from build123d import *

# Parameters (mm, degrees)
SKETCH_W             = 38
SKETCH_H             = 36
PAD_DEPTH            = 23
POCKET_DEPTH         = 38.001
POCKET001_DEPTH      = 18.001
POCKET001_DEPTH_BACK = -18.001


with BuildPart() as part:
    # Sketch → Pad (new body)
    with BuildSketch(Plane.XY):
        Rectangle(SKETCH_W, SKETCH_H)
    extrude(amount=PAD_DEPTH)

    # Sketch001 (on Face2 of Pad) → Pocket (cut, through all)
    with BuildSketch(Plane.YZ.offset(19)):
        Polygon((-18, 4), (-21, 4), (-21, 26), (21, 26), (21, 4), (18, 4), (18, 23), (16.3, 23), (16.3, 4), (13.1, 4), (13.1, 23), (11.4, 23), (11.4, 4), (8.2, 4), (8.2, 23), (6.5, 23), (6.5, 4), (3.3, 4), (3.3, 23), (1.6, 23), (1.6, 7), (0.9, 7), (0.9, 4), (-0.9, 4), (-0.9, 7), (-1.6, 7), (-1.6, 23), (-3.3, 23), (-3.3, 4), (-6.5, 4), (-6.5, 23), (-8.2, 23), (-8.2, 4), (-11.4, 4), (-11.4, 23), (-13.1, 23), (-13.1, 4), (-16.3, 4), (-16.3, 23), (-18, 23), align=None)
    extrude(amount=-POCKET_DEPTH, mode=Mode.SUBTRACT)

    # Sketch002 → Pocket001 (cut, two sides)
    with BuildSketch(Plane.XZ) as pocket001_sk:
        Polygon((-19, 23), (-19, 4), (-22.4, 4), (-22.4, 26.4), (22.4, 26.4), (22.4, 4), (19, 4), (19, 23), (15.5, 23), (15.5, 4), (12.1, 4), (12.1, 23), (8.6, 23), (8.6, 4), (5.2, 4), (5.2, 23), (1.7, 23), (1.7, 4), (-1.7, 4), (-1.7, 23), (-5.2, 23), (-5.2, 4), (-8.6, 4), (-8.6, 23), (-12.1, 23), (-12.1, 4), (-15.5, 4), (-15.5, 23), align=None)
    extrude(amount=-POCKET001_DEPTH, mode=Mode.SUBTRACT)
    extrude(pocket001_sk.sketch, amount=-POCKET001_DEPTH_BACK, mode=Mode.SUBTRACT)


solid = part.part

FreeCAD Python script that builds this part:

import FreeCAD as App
import Part
import Sketcher
Q = App.Units.Quantity


def add_polygon(sketch, points):
    """Adds a closed chain of lines whose ends are joined by coincident constraints."""
    first, n = sketch.GeometryCount, len(points)
    for a, b in zip(points, points[1:] + points[:1]):
        sketch.addGeometry(Part.LineSegment(App.Vector(*a, 0), App.Vector(*b, 0)), False)
    for i in range(n):
        sketch.addConstraint(Sketcher.Constraint("Coincident", first + i, 2, first + (i + 1) % n, 1))

doc = App.newDocument("Part")
body = doc.addObject("PartDesign::Body", "Body")

# Sketch on XY plane
sketch1 = body.newObject("Sketcher::SketchObject", "Sketch")
sketch1.AttachmentSupport = (doc.getObject("XY_Plane"), [""])
sketch1.MapMode = "FlatFace"
add_polygon(sketch1, [(-19, 18), (-19, -18), (19, -18), (19, 18)])  # lines 0-3
sketch1.addConstraint([
    Sketcher.Constraint("Vertical", 0),
    Sketcher.Constraint("Horizontal", 1),
    Sketcher.Constraint("Vertical", 2),
    Sketcher.Constraint("Horizontal", 3),
    Sketcher.Constraint("Symmetric", 0, 2, 2, 2, -1, 1),
    Sketcher.Constraint("DistanceX", 1, 1, 1, 2, Q("38 mm")),
    Sketcher.Constraint("DistanceY", 0, 2, 0, 1, Q("36 mm")),
])
pad1 = body.newObject("PartDesign::Pad", "Pad")
pad1.Profile = sketch1
pad1.Length = 23

# Sketch on YZ plane
sketch2 = body.newObject("Sketcher::SketchObject", "Sketch001")
sketch2.AttachmentSupport = (doc.getObject("YZ_Plane"), [""])
sketch2.MapMode = "FlatFace"
sketch2.AttachmentOffset = App.Placement(App.Vector(0, 0, 19), App.Rotation())
add_polygon(sketch2, [(-21, 4), (-18, 4), (-18, 23), (-16.3, 23), (-16.3, 4), (-13.1, 4), (-13.1, 23), (-11.4, 23), (-11.4, 4), (-8.2, 4), (-8.2, 23), (-6.5, 23), (-6.5, 4), (-3.3, 4), (-3.3, 23), (-1.6, 23), (-1.6, 7), (-0.9, 7), (-0.9, 4), (0.9, 4), (0.9, 7), (1.6, 7), (1.6, 23), (3.3, 23), (3.3, 4), (6.5, 4), (6.5, 23), (8.2, 23), (8.2, 4), (11.4, 4), (11.4, 23), (13.1, 23), (13.1, 4), (16.3, 4), (16.3, 23), (18, 23), (18, 4), (21, 4), (21, 26), (-21, 26)])  # lines 0-39
sketch2.addConstraint([
    Sketcher.Constraint("Horizontal", 0),
    Sketcher.Constraint("Vertical", 1),
    Sketcher.Constraint("Horizontal", 2),
    Sketcher.Constraint("Vertical", 3),
    Sketcher.Constraint("Horizontal", 4),
    Sketcher.Constraint("Vertical", 5),
    Sketcher.Constraint("Horizontal", 6),
    Sketcher.Constraint("Vertical", 7),
    Sketcher.Constraint("Horizontal", 8),
    Sketcher.Constraint("Vertical", 9),
    Sketcher.Constraint("Horizontal", 10),
    Sketcher.Constraint("Vertical", 11),
    Sketcher.Constraint("Horizontal", 12),
    Sketcher.Constraint("Vertical", 13),
    Sketcher.Constraint("Horizontal", 14),
    Sketcher.Constraint("Vertical", 15),
    Sketcher.Constraint("Horizontal", 16),
    Sketcher.Constraint("Vertical", 17),
    Sketcher.Constraint("Horizontal", 18),
    Sketcher.Constraint("Vertical", 19),
    Sketcher.Constraint("Horizontal", 20),
    Sketcher.Constraint("Vertical", 21),
    Sketcher.Constraint("Horizontal", 22),
    Sketcher.Constraint("Vertical", 23),
    Sketcher.Constraint("Horizontal", 24),
    Sketcher.Constraint("Vertical", 25),
    Sketcher.Constraint("Horizontal", 26),
    Sketcher.Constraint("Vertical", 27),
    Sketcher.Constraint("Horizontal", 28),
    Sketcher.Constraint("Vertical", 29),
    Sketcher.Constraint("Horizontal", 30),
    Sketcher.Constraint("Vertical", 31),
    Sketcher.Constraint("Horizontal", 32),
    Sketcher.Constraint("Vertical", 33),
    Sketcher.Constraint("Horizontal", 34),
    Sketcher.Constraint("Vertical", 35),
    Sketcher.Constraint("Horizontal", 36),
    Sketcher.Constraint("Vertical", 37),
    Sketcher.Constraint("Horizontal", 38),
    Sketcher.Constraint("Vertical", 39),
    Sketcher.Constraint("Symmetric", 16, 2, 19, 2, -2),
    Sketcher.Constraint("Symmetric", 14, 2, 21, 2, -2),
    Sketcher.Constraint("Symmetric", 12, 2, 23, 2, -2),
    Sketcher.Constraint("Symmetric", 10, 2, 25, 2, -2),
    Sketcher.Constraint("Symmetric", 8, 2, 27, 2, -2),
    Sketcher.Constraint("Symmetric", 6, 2, 29, 2, -2),
    Sketcher.Constraint("Symmetric", 4, 2, 31, 2, -2),
    Sketcher.Constraint("Symmetric", 2, 2, 33, 2, -2),
    Sketcher.Constraint("Symmetric", 0, 2, 35, 2, -2),
    Sketcher.Constraint("Horizontal", 0, 2, 3, 2),
    Sketcher.Constraint("Horizontal", 2, 2, 5, 2),
    Sketcher.Constraint("Horizontal", 4, 2, 7, 2),
    Sketcher.Constraint("Horizontal", 6, 2, 9, 2),
    Sketcher.Constraint("Horizontal", 8, 2, 11, 2),
    Sketcher.Constraint("Horizontal", 10, 2, 13, 2),
    Sketcher.Constraint("Horizontal", 12, 2, 17, 2),
    Sketcher.Constraint("Equal", 2, 6),
    Sketcher.Constraint("Equal", 4, 8),
    Sketcher.Constraint("Equal", 6, 10),
    Sketcher.Constraint("Equal", 8, 12),
    Sketcher.Constraint("Equal", 10, 14),
    Sketcher.Constraint("Equal", 0, 36),
    Sketcher.Constraint("Equal", 36, 17),
    Sketcher.Constraint("DistanceX", 0, 1, 0, 2, Q("3 mm")),
    Sketcher.Constraint("DistanceX", 38, 2, 38, 1, Q("42 mm")),
    Sketcher.Constraint("DistanceY", 1, 1, 1, 2, Q("19 mm")),
    Sketcher.Constraint("DistanceY", 37, 1, 37, 2, Q("22 mm")),
    Sketcher.Constraint("DistanceX", 2, 1, 2, 2, Q("1.7 mm")),
    Sketcher.Constraint("DistanceX", 4, 1, 4, 2, Q("3.2 mm")),
    Sketcher.Constraint("DistanceX", 16, 1, 16, 2, Q("0.7 mm")),
    Sketcher.Constraint("DistanceY", -1, 1, 0, 2, Q("4 mm")),
])
pocket1 = body.newObject("PartDesign::Pocket", "Pocket")
pocket1.Profile = sketch2
pocket1.Type = "ThroughAll"

# Sketch on XZ plane
sketch3 = body.newObject("Sketcher::SketchObject", "Sketch002")
sketch3.AttachmentSupport = (doc.getObject("XZ_Plane"), [""])
sketch3.MapMode = "FlatFace"
add_polygon(sketch3, [(-19, 4), (-19, 23), (-15.5, 23), (-15.5, 4), (-12.1, 4), (-12.1, 23), (-8.6, 23), (-8.6, 4), (-5.2, 4), (-5.2, 23), (-1.7, 23), (-1.7, 4), (1.7, 4), (1.7, 23), (5.2, 23), (5.2, 4), (8.6, 4), (8.6, 23), (12.1, 23), (12.1, 4), (15.5, 4), (15.5, 23), (19, 23), (19, 4), (22.4, 4), (22.4, 26.4), (-22.4, 26.4), (-22.4, 4)])  # lines 0-27
sketch3.addConstraint([
    Sketcher.Constraint("Vertical", 0),
    Sketcher.Constraint("Horizontal", 1),
    Sketcher.Constraint("Vertical", 2),
    Sketcher.Constraint("Horizontal", 3),
    Sketcher.Constraint("Vertical", 4),
    Sketcher.Constraint("Horizontal", 5),
    Sketcher.Constraint("Vertical", 6),
    Sketcher.Constraint("Horizontal", 7),
    Sketcher.Constraint("Vertical", 8),
    Sketcher.Constraint("Horizontal", 9),
    Sketcher.Constraint("Vertical", 10),
    Sketcher.Constraint("Horizontal", 11),
    Sketcher.Constraint("Vertical", 12),
    Sketcher.Constraint("Horizontal", 13),
    Sketcher.Constraint("Vertical", 14),
    Sketcher.Constraint("Horizontal", 15),
    Sketcher.Constraint("Vertical", 16),
    Sketcher.Constraint("Horizontal", 17),
    Sketcher.Constraint("Vertical", 18),
    Sketcher.Constraint("Horizontal", 19),
    Sketcher.Constraint("Vertical", 20),
    Sketcher.Constraint("Horizontal", 21),
    Sketcher.Constraint("Vertical", 22),
    Sketcher.Constraint("Horizontal", 23),
    Sketcher.Constraint("Vertical", 24),
    Sketcher.Constraint("Horizontal", 25),
    Sketcher.Constraint("Vertical", 26),
    Sketcher.Constraint("Horizontal", 27),
    Sketcher.Constraint("Symmetric", 9, 2, 12, 2, -2),
    Sketcher.Constraint("Symmetric", 7, 2, 14, 2, -2),
    Sketcher.Constraint("Symmetric", 5, 2, 16, 2, -2),
    Sketcher.Constraint("Symmetric", 3, 2, 18, 2, -2),
    Sketcher.Constraint("Symmetric", 1, 2, 20, 2, -2),
    Sketcher.Constraint("Symmetric", 23, 2, 26, 2, -2),
    Sketcher.Constraint("Horizontal", 1, 2, 4, 2),
    Sketcher.Constraint("Horizontal", 3, 2, 6, 2),
    Sketcher.Constraint("Horizontal", 5, 2, 8, 2),
    Sketcher.Constraint("Horizontal", 7, 2, 10, 2),
    Sketcher.Constraint("Horizontal", 19, 2, 22, 2),
    Sketcher.Constraint("Equal", 1, 5),
    Sketcher.Constraint("Equal", 3, 7),
    Sketcher.Constraint("Equal", 5, 9),
    Sketcher.Constraint("Equal", 7, 11),
    Sketcher.Constraint("Equal", 17, 21),
    Sketcher.Constraint("Equal", 19, 23),
    Sketcher.Constraint("DistanceY", 0, 1, 0, 2, Q("19 mm")),
    Sketcher.Constraint("DistanceX", 1, 1, 1, 2, Q("3.5 mm")),
    Sketcher.Constraint("DistanceX", 3, 1, 3, 2, Q("3.4 mm")),
    Sketcher.Constraint("DistanceY", 24, 1, 24, 2, Q("22.4 mm")),
    Sketcher.Constraint("DistanceY", -1, 1, 0, 2, Q("23 mm")),
])
pocket2 = body.newObject("PartDesign::Pocket", "Pocket001")
pocket2.Profile = sketch3
pocket2.Type = "ThroughAll"
pocket2.Midplane = True

doc.recompute()
